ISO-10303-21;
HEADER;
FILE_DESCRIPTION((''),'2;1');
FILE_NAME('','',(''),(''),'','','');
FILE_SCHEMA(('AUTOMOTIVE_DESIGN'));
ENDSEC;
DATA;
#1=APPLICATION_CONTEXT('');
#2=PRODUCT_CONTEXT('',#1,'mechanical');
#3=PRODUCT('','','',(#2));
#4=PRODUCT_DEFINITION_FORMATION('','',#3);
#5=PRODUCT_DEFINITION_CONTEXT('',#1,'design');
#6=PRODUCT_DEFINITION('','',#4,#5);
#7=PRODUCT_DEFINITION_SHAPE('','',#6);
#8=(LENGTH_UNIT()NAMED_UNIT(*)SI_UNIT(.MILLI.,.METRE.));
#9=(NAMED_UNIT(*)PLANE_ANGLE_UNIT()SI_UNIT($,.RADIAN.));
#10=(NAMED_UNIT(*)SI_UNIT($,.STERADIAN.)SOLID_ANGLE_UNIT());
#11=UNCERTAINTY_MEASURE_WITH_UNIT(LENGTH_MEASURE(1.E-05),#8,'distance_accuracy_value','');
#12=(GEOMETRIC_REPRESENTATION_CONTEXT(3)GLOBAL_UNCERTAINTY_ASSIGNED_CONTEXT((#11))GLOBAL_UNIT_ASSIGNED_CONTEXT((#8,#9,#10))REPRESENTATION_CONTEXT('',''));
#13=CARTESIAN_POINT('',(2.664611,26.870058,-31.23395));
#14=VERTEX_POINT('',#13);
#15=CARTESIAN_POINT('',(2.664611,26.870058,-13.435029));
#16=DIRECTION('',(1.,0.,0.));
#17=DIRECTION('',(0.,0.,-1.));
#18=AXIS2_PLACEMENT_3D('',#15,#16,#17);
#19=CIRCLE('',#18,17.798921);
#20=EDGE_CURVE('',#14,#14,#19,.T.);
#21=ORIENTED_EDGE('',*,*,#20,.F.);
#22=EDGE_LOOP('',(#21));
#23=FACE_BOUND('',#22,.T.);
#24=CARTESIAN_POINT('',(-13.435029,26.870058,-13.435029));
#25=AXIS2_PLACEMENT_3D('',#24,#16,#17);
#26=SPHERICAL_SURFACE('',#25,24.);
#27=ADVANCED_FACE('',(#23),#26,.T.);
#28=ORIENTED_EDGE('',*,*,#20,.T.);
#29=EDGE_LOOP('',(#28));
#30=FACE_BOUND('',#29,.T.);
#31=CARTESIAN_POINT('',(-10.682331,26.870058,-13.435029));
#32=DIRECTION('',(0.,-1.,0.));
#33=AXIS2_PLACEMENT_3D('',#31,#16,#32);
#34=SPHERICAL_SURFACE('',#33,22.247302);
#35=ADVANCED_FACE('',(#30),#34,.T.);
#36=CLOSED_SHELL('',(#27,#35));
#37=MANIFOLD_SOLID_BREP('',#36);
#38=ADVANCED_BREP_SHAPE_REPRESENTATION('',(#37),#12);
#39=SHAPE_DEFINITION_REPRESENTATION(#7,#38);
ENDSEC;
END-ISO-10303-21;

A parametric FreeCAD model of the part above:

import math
import FreeCAD as App
import Part
import Sketcher
from FreeCAD import Vector
Q = App.Units.Quantity

doc = App.newDocument("Part")
body = doc.addObject("PartDesign::Body", "Body")

# Sketch on YZ plane
sketch1 = doc.addObject("Sketcher::SketchObject", "Sketch")
body.addObject(sketch1)
sketch1.AttachmentSupport = (doc.YZ_Plane, [""])
sketch1.MapMode = "FlatFace"
sketch1.AttachmentOffset = App.Placement(Vector(0, 0, -13.435029), App.Rotation())
sketch1.addGeometry(Part.LineSegment(Vector(27, 11, 0), Vector(27, -37, 0)), False)
sketch1.addGeometry(Part.ArcOfCircle(Part.Circle(Vector(27, -13, 0), Vector(0, 0, 1), 24), math.radians(-90), math.radians(90)), False)
sketch1.addGeometry(Part.LineSegment(Vector(27, 11, 0), Vector(27, -37, 0)), True)  # axis
sketch1.addConstraint(Sketcher.Constraint("Coincident", 0, 1, 1, 2))
sketch1.addConstraint(Sketcher.Constraint("Coincident", 1, 1, 0, 2))
sketch1.addConstraint(Sketcher.Constraint("Vertical", 0))
sketch1.addConstraint(Sketcher.Constraint("Vertical", 2))
sketch1.addConstraint(Sketcher.Constraint("Coincident", 2, 1, 0, 1))
sketch1.addConstraint(Sketcher.Constraint("Vertical", 1, 3, 0, 1))
sketch1.addConstraint(Sketcher.Constraint("Equal", 0, 2))
sketch1.addConstraint(Sketcher.Constraint("Radius", 1, Q("24 mm")))
sketch1.addConstraint(Sketcher.Constraint("DistanceY", 1, 3, -1, 1, Q("13.435029 mm")))
sketch1.addConstraint(Sketcher.Constraint("DistanceX", -1, 1, 1, 3, Q("26.870058 mm")))
revolution = doc.addObject("PartDesign::Revolution", "Revolution")
body.addObject(revolution)
revolution.Profile = sketch1
revolution.ReferenceAxis = (sketch1, ["Axis0"])
revolution.Angle = 360

# Sketch on XY plane
sketch2 = doc.addObject("Sketcher::SketchObject", "Sketch001")
body.addObject(sketch2)
sketch2.AttachmentSupport = (doc.XY_Plane, [""])
sketch2.MapMode = "FlatFace"
sketch2.AttachmentOffset = App.Placement(Vector(0, 0, -13.435029), App.Rotation())
sketch2.addGeometry(Part.LineSegment(Vector(10.6, 26.9, 0), Vector(11.6, 26.9, 0)), False)
sketch2.addGeometry(Part.ArcOfCircle(Part.Circle(Vector(-10.7, 26.9, 0), Vector(0, 0, 1), 22.2), math.radians(0), math.radians(53)), False)
sketch2.addGeometry(Part.ArcOfCircle(Part.Circle(Vector(-13.4, 26.9, 0), Vector(0, 0, 1), 24), math.radians(0), math.radians(48)), False)
sketch2.addGeometry(Part.LineSegment(Vector(11.6, 26.9, 0), Vector(-13.4, 26.9, 0)), True)  # axis
sketch2.addConstraint(Sketcher.Constraint("Coincident", 0, 2, 1, 1))
sketch2.addConstraint(Sketcher.Constraint("Coincident", 1, 2, 2, 2))
sketch2.addConstraint(Sketcher.Constraint("Coincident", 2, 1, 0, 1))
sketch2.addConstraint(Sketcher.Constraint("Horizontal", 0))
sketch2.addConstraint(Sketcher.Constraint("Horizontal", 3))
sketch2.addConstraint(Sketcher.Constraint("Coincident", 3, 1, 0, 2))
sketch2.addConstraint(Sketcher.Constraint("Coincident", 3, 2, 2, 3))
sketch2.addConstraint(Sketcher.Constraint("Horizontal", 1, 3, 2, 3))
sketch2.addConstraint(Sketcher.Constraint("Radius", 2, Q("24 mm")))
sketch2.addConstraint(Sketcher.Constraint("DistanceX", 0, 1, 0, 2, Q("1 mm")))
sketch2.addConstraint(Sketcher.Constraint("Radius", 1, Q("22.247302 mm")))
sketch2.addConstraint(Sketcher.Constraint("DistanceX", 1, 3, -1, 1, Q("10.682331 mm")))
sketch2.addConstraint(Sketcher.Constraint("DistanceY", -1, 1, 1, 2, Q("44.668979 mm")))
revolution2 = doc.addObject("PartDesign::Revolution", "Revolution001")
body.addObject(revolution2)
revolution2.Profile = sketch2
revolution2.ReferenceAxis = (sketch2, ["Axis0"])
revolution2.Angle = 360

doc.recompute()
